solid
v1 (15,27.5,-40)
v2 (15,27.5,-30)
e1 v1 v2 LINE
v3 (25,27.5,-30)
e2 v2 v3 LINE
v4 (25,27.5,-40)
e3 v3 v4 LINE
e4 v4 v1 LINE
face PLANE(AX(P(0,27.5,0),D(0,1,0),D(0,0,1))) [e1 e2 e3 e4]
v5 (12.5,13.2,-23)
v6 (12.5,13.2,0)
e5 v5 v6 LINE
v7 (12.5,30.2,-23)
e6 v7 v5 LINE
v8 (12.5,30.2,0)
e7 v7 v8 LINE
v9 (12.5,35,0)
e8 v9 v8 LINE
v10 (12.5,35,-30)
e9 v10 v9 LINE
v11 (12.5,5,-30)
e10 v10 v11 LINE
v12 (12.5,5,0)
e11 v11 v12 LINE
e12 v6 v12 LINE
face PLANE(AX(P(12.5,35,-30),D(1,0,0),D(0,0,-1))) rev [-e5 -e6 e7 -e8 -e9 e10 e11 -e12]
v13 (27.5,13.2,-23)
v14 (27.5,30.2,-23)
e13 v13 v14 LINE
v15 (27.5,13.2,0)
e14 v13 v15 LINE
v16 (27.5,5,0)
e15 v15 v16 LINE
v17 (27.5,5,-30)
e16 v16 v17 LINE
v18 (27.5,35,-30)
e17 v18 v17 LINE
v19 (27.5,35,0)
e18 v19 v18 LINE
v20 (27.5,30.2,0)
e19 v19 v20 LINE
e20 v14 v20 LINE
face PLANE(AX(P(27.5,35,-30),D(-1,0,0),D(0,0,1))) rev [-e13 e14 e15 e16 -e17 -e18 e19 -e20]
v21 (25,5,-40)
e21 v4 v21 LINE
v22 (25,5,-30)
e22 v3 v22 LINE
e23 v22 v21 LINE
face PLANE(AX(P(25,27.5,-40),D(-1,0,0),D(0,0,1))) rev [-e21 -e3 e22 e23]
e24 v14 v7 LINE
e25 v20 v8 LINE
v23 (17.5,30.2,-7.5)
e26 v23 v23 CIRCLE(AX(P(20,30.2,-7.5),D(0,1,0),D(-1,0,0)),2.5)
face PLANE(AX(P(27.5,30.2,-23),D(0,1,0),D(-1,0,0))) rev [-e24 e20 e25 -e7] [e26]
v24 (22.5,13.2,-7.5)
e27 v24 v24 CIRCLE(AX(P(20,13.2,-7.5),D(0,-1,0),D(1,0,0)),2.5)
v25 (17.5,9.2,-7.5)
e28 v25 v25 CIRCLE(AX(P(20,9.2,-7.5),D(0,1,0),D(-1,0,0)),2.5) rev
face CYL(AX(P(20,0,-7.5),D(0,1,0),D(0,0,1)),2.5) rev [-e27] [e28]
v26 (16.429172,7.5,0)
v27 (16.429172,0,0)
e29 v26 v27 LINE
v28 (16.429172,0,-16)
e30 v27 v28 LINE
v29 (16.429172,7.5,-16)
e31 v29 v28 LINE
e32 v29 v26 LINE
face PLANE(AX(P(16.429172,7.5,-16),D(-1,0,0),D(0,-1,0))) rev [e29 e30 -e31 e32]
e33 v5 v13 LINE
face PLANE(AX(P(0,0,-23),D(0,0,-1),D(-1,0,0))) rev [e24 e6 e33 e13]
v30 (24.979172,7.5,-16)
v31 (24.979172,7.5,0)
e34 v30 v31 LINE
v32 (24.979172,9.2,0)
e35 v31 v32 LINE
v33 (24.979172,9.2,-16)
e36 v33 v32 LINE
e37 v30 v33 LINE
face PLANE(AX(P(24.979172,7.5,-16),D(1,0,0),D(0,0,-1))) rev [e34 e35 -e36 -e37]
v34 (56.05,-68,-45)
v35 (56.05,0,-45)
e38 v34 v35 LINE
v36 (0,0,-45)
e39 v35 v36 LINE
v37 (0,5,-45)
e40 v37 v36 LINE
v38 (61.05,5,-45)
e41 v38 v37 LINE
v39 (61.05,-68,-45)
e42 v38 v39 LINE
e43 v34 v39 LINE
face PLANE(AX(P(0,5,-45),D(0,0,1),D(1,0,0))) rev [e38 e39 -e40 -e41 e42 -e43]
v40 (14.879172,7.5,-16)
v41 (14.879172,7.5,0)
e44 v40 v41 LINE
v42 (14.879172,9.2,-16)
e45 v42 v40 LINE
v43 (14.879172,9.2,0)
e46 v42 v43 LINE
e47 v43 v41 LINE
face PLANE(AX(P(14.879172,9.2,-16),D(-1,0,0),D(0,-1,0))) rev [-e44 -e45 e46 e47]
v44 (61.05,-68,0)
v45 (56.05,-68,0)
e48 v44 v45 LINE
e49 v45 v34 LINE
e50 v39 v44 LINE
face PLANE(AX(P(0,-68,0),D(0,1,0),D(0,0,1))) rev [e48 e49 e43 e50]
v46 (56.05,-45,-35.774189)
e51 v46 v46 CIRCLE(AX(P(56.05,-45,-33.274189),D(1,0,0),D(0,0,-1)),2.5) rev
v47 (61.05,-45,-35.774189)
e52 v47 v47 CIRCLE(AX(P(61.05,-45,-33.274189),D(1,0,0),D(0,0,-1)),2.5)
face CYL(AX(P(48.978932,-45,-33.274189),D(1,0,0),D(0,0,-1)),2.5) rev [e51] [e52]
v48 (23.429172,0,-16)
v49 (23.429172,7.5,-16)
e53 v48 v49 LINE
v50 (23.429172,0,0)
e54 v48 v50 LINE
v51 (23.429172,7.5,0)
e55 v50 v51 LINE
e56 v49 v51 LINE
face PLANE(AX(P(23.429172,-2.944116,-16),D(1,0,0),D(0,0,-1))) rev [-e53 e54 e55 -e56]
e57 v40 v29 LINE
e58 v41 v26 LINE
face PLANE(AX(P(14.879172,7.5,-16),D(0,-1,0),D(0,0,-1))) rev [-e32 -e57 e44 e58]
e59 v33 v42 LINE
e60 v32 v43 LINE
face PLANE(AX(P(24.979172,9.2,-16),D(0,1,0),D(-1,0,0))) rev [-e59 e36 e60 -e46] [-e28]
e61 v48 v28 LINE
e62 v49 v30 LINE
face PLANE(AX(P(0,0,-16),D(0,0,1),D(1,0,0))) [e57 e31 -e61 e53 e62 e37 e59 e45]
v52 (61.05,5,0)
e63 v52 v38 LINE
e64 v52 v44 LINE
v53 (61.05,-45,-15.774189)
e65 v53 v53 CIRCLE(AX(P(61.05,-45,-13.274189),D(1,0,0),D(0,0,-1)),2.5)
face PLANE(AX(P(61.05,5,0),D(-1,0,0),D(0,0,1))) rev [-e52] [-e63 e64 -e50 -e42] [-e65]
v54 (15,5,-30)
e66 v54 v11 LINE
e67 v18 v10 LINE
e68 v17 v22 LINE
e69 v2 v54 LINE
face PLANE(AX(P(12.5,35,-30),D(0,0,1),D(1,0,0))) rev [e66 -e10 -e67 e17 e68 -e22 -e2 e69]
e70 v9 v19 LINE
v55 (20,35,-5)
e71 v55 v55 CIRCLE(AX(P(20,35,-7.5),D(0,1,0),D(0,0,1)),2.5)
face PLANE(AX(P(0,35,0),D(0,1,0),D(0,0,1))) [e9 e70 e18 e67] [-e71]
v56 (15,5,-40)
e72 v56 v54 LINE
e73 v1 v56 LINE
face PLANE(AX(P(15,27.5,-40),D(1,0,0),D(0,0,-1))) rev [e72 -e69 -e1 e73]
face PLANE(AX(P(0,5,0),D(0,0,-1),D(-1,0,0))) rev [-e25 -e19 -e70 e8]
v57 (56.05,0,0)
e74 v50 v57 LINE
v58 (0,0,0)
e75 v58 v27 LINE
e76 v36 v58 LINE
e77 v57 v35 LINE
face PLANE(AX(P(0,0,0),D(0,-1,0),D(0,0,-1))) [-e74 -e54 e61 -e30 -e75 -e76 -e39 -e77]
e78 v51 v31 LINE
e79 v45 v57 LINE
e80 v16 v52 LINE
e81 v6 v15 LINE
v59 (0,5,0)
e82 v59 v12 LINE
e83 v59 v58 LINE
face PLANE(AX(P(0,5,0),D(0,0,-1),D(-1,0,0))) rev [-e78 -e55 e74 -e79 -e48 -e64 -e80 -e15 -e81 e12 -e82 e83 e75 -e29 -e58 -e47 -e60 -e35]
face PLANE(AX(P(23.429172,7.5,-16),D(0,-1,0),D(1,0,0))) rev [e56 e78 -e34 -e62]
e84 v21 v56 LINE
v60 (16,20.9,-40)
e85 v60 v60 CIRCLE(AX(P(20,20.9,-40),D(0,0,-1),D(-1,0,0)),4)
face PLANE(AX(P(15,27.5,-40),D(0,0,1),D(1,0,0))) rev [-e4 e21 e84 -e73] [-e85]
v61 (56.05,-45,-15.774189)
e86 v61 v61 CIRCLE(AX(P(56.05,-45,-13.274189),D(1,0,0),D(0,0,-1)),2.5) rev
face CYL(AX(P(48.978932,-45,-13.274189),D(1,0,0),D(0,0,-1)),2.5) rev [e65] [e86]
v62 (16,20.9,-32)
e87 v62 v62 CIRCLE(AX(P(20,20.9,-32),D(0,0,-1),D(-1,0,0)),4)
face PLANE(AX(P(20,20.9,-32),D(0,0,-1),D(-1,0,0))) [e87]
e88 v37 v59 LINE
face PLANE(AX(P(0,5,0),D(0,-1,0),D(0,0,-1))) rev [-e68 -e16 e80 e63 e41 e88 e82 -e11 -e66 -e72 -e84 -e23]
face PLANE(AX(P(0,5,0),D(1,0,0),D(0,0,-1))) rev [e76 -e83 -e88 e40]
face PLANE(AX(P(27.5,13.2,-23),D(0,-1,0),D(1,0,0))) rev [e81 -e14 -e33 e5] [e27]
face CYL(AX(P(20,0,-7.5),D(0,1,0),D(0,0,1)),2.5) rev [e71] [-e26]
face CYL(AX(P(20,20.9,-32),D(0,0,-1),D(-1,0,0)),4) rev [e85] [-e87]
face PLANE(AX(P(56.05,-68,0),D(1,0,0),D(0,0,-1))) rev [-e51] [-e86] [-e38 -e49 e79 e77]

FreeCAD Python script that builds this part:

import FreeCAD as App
import Part
import Sketcher

doc = App.newDocument("Part")
body = doc.addObject("PartDesign::Body", "Body")

sketch1 = body.newObject("Sketcher::SketchObject", "Sketch")
sketch1.AttachmentSupport = (doc.getObject("XZ_Plane"), [""])
sketch1.MapMode = "FlatFace"
sketch1.addGeometry([
    Part.LineSegment(App.Vector(0, -45, 0), App.Vector(0, 0, 0)),
    Part.LineSegment(App.Vector(0, 0, 0), App.Vector(61.05, 0, 0)),
    Part.LineSegment(App.Vector(61.05, 0, 0), App.Vector(61.05, -45, 0)),
    Part.LineSegment(App.Vector(61.05, -45, 0), App.Vector(0, -45, 0)),
], False)
sketch1.addConstraint([
    Sketcher.Constraint("Coincident", 0, 2, 1, 1),
    Sketcher.Constraint("Coincident", 1, 2, 2, 1),
    Sketcher.Constraint("Coincident", 2, 2, 3, 1),
    Sketcher.Constraint("Coincident", 3, 2, 0, 1),
    Sketcher.Constraint("Vertical", 0),
    Sketcher.Constraint("Horizontal", 1),
    Sketcher.Constraint("Vertical", 2),
    Sketcher.Constraint("Horizontal", 3),
    Sketcher.Constraint("Coincident", 0, 2, -1, 1),
    Sketcher.Constraint("DistanceY", 0, 1, 0, 2, 45.0),
    Sketcher.Constraint("DistanceX", 1, 1, 1, 2, 61.05),
])
pad1 = body.newObject("PartDesign::Pad", "Pad")
pad1.Profile = sketch1
pad1.Length = 5
pad1.Reversed = True

sketch2 = body.newObject("Sketcher::SketchObject", "Sketch001")
sketch2.AttachmentSupport = (doc.getObject("XZ_Plane"), [""])
sketch2.MapMode = "FlatFace"
sketch2.AttachmentOffset = App.Placement(App.Vector(0, 0, -5), App.Rotation())
sketch2.addGeometry([
    Part.LineSegment(App.Vector(15, -40, 0), App.Vector(15, -30, 0)),
    Part.LineSegment(App.Vector(15, -30, 0), App.Vector(25, -30, 0)),
    Part.LineSegment(App.Vector(25, -30, 0), App.Vector(25, -40, 0)),
    Part.LineSegment(App.Vector(25, -40, 0), App.Vector(15, -40, 0)),
], False)
sketch2.addConstraint([
    Sketcher.Constraint("Coincident", 0, 2, 1, 1),
    Sketcher.Constraint("Coincident", 1, 2, 2, 1),
    Sketcher.Constraint("Coincident", 2, 2, 3, 1),
    Sketcher.Constraint("Coincident", 3, 2, 0, 1),
    Sketcher.Constraint("Vertical", 0),
    Sketcher.Constraint("Horizontal", 1),
    Sketcher.Constraint("Vertical", 2),
    Sketcher.Constraint("Horizontal", 3),
    Sketcher.Constraint("Equal", 3, 0),
    Sketcher.Constraint("DistanceX", 1, 1, 1, 2, 10.0),
    Sketcher.Constraint("DistanceX", -1, 1, 0, 2, 15.0),
    Sketcher.Constraint("DistanceY", 0, 2, -1, 1, 30.0),
])
pad2 = body.newObject("PartDesign::Pad", "Pad001")
pad2.Profile = sketch2
pad2.Length = 22.5
pad2.Reversed = True

sketch3 = body.newObject("Sketcher::SketchObject", "Sketch002")
sketch3.AttachmentSupport = (doc.getObject("XY_Plane"), [""])
sketch3.MapMode = "FlatFace"
sketch3.AttachmentOffset = App.Placement(App.Vector(0, 0, -40), App.Rotation())
sketch3.addGeometry(Part.Circle(App.Vector(20, 20.9, 0), App.Vector(0, 0, 1), 4), False)
sketch3.addConstraint([
    Sketcher.Constraint("Diameter", 0, 8.0),
    Sketcher.Constraint("DistanceX", -1, 1, 0, 3, 20.0),
    Sketcher.Constraint("DistanceY", -1, 1, 0, 3, 20.9),
])
pocket1 = body.newObject("PartDesign::Pocket", "Pocket")
pocket1.Profile = sketch3
pocket1.Length = 8
pocket1.Reversed = True

sketch4 = body.newObject("Sketcher::SketchObject", "Sketch003")
sketch4.AttachmentSupport = (doc.getObject("XZ_Plane"), [""])
sketch4.MapMode = "FlatFace"
sketch4.AttachmentOffset = App.Placement(App.Vector(0, 0, -5), App.Rotation())
sketch4.addGeometry([
    Part.LineSegment(App.Vector(12.5, -30, 0), App.Vector(12.5, 0, 0)),
    Part.LineSegment(App.Vector(12.5, 0, 0), App.Vector(27.5, 0, 0)),
    Part.LineSegment(App.Vector(27.5, 0, 0), App.Vector(27.5, -30, 0)),
    Part.LineSegment(App.Vector(27.5, -30, 0), App.Vector(12.5, -30, 0)),
], False)
sketch4.addConstraint([
    Sketcher.Constraint("Coincident", 0, 2, 1, 1),
    Sketcher.Constraint("Coincident", 1, 2, 2, 1),
    Sketcher.Constraint("Coincident", 2, 2, 3, 1),
    Sketcher.Constraint("Coincident", 3, 2, 0, 1),
    Sketcher.Constraint("Vertical", 0),
    Sketcher.Constraint("Horizontal", 1),
    Sketcher.Constraint("Vertical", 2),
    Sketcher.Constraint("Horizontal", 3),
    Sketcher.Constraint("PointOnObject", 0, 2, -1),
    Sketcher.Constraint("DistanceX", 1, 1, 1, 2, 15.0),
    Sketcher.Constraint("DistanceY", 0, 1, 0, 2, 30.0),
    Sketcher.Constraint("DistanceX", -1, 1, 0, 2, 12.5),
])
pad3 = body.newObject("PartDesign::Pad", "Pad002")
pad3.Profile = sketch4
pad3.Length = 30
pad3.Reversed = True

sketch5 = body.newObject("Sketcher::SketchObject", "Sketch004")
sketch5.AttachmentSupport = (doc.getObject("XY_Plane"), [""])
sketch5.MapMode = "FlatFace"
sketch5.addGeometry([
    Part.LineSegment(App.Vector(12.5, 30.2, 0), App.Vector(12.5, 13.2, 0)),
    Part.LineSegment(App.Vector(12.5, 13.2, 0), App.Vector(27.5, 13.2, 0)),
    Part.LineSegment(App.Vector(27.5, 13.2, 0), App.Vector(27.5, 30.2, 0)),
    Part.LineSegment(App.Vector(27.5, 30.2, 0), App.Vector(12.5, 30.2, 0)),
], False)
sketch5.addConstraint([
    Sketcher.Constraint("Coincident", 0, 2, 1, 1),
    Sketcher.Constraint("Coincident", 1, 2, 2, 1),
    Sketcher.Constraint("Coincident", 2, 2, 3, 1),
    Sketcher.Constraint("Coincident", 3, 2, 0, 1),
    Sketcher.Constraint("Vertical", 0),
    Sketcher.Constraint("Horizontal", 1),
    Sketcher.Constraint("Vertical", 2),
    Sketcher.Constraint("Horizontal", 3),
    Sketcher.Constraint("DistanceX", 1, 1, 1, 2, 15.0),
    Sketcher.Constraint("DistanceY", 0, 2, 0, 1, 17.0),
    Sketcher.Constraint("DistanceX", -1, 1, 0, 2, 12.5),
    Sketcher.Constraint("DistanceY", -1, 1, 0, 2, 13.2),
])
pocket2 = body.newObject("PartDesign::Pocket", "Pocket001")
pocket2.Profile = sketch5
pocket2.Length = 23

sketch6 = body.newObject("Sketcher::SketchObject", "Sketch005")
sketch6.AttachmentSupport = (doc.getObject("XZ_Plane"), [""])
sketch6.MapMode = "FlatFace"
sketch6.AttachmentOffset = App.Placement(App.Vector(0, 0, -35), App.Rotation())
sketch6.addGeometry(Part.Circle(App.Vector(20, -7.5, 0), App.Vector(0, 0, 1), 2.5), False)
sketch6.addConstraint([
    Sketcher.Constraint("Diameter", 0, 5.0),
    Sketcher.Constraint("DistanceX", -1, 1, 0, 3, 20.0),
    Sketcher.Constraint("DistanceY", 0, 3, -1, 1, 7.5),
])
pocket3 = body.newObject("PartDesign::Pocket", "Pocket002")
pocket3.Profile = sketch6
pocket3.Type = "ThroughAll"
pocket3.Reversed = True

sketch7 = body.newObject("Sketcher::SketchObject", "Sketch006")
sketch7.AttachmentSupport = (doc.getObject("XZ_Plane"), [""])
sketch7.MapMode = "FlatFace"
sketch7.addGeometry([
    Part.LineSegment(App.Vector(56.05, 0, 0), App.Vector(56.05, -45, 0)),
    Part.LineSegment(App.Vector(56.05, -45, 0), App.Vector(61.05, -45, 0)),
    Part.LineSegment(App.Vector(61.05, -45, 0), App.Vector(61.05, 0, 0)),
    Part.LineSegment(App.Vector(61.05, 0, 0), App.Vector(56.05, 0, 0)),
], False)
sketch7.addConstraint([
    Sketcher.Constraint("Coincident", 0, 2, 1, 1),
    Sketcher.Constraint("Coincident", 1, 2, 2, 1),
    Sketcher.Constraint("Coincident", 2, 2, 3, 1),
    Sketcher.Constraint("Coincident", 3, 2, 0, 1),
    Sketcher.Constraint("Vertical", 0),
    Sketcher.Constraint("Horizontal", 1),
    Sketcher.Constraint("Vertical", 2),
    Sketcher.Constraint("Horizontal", 3),
    Sketcher.Constraint("PointOnObject", 2, 2, -1),
    Sketcher.Constraint("DistanceX", 1, 1, 1, 2, 5.0),
    Sketcher.Constraint("DistanceY", 0, 2, 0, 1, 45.0),
    Sketcher.Constraint("DistanceX", -1, 1, 0, 2, 56.05),
])
pad4 = body.newObject("PartDesign::Pad", "Pad003")
pad4.Profile = sketch7
pad4.Length = 68

sketch8 = body.newObject("Sketcher::SketchObject", "Sketch007")
sketch8.AttachmentSupport = (doc.getObject("YZ_Plane"), [""])
sketch8.MapMode = "FlatFace"
sketch8.AttachmentOffset = App.Placement(App.Vector(0, 0, 61.05), App.Rotation())
sketch8.addGeometry([
    Part.Circle(App.Vector(-45, -13.274189, 0), App.Vector(0, 0, 1), 2.5),
    Part.Circle(App.Vector(-45, -33.274189, 0), App.Vector(0, 0, 1), 2.5),
], False)
sketch8.addConstraint([
    Sketcher.Constraint("Equal", 0, 1),
    Sketcher.Constraint("Vertical", 0, 3, 1, 3),
    Sketcher.Constraint("Diameter", 0, 5.0),
    Sketcher.Constraint("DistanceX", 0, 3, -1, 1, 45.0),
    Sketcher.Constraint("DistanceY", 1, 3, 0, 3, 20.0),
    Sketcher.Constraint("DistanceY", 0, 3, -1, 1, 13.274189),
])
pocket4 = body.newObject("PartDesign::Pocket", "Pocket003")
pocket4.Profile = sketch8
pocket4.Length = 5

sketch9 = body.newObject("Sketcher::SketchObject", "Sketch008")
sketch9.AttachmentSupport = (doc.getObject("XY_Plane"), [""])
sketch9.MapMode = "FlatFace"
sketch9.addGeometry([
    Part.LineSegment(App.Vector(24.979172, 9.2, 0), App.Vector(14.879172, 9.2, 0)),
    Part.LineSegment(App.Vector(14.879172, 9.2, 0), App.Vector(14.879172, 7.5, 0)),
    Part.LineSegment(App.Vector(14.879172, 7.5, 0), App.Vector(16.429172, 7.5, 0)),
    Part.LineSegment(App.Vector(16.429172, 7.5, 0), App.Vector(16.429172, -2.944116, 0)),
    Part.LineSegment(App.Vector(16.429172, -2.944116, 0), App.Vector(23.429172, -2.944116, 0)),
    Part.LineSegment(App.Vector(23.429172, -2.944116, 0), App.Vector(23.429172, 7.5, 0)),
    Part.LineSegment(App.Vector(23.429172, 7.5, 0), App.Vector(24.979172, 7.5, 0)),
    Part.LineSegment(App.Vector(24.979172, 7.5, 0), App.Vector(24.979172, 9.2, 0)),
], False)
sketch9.addConstraint([
    Sketcher.Constraint("Coincident", 0, 2, 1, 1),
    Sketcher.Constraint("Coincident", 1, 2, 2, 1),
    Sketcher.Constraint("Coincident", 2, 2, 3, 1),
    Sketcher.Constraint("Coincident", 3, 2, 4, 1),
    Sketcher.Constraint("Coincident", 4, 2, 5, 1),
    Sketcher.Constraint("Coincident", 5, 2, 6, 1),
    Sketcher.Constraint("Coincident", 6, 2, 7, 1),
    Sketcher.Constraint("Coincident", 7, 2, 0, 1),
    Sketcher.Constraint("Horizontal", 0),
    Sketcher.Constraint("Vertical", 1),
    Sketcher.Constraint("Horizontal", 2),
    Sketcher.Constraint("Vertical", 3),
    Sketcher.Constraint("Horizontal", 4),
    Sketcher.Constraint("Vertical", 5),
    Sketcher.Constraint("Horizontal", 6),
    Sketcher.Constraint("Vertical", 7),
    Sketcher.Constraint("Horizontal", 2, 2, 5, 2),
    Sketcher.Constraint("Equal", 2, 6),
    Sketcher.Constraint("DistanceX", 4, 1, 4, 2, 7.0),
    Sketcher.Constraint("DistanceX", 0, 2, 0, 1, 10.1),
    Sketcher.Constraint("DistanceY", 1, 2, 1, 1, 1.7),
    Sketcher.Constraint("DistanceY", -1, 1, 0, 2, 9.2),
    Sketcher.Constraint("DistanceY", 3, 2, 3, 1, 10.444116),
    Sketcher.Constraint("DistanceX", -1, 1, 0, 2, 14.879172),
])
pocket5 = body.newObject("PartDesign::Pocket", "Pocket004")
pocket5.Profile = sketch9
pocket5.Length = 16

doc.recompute()
